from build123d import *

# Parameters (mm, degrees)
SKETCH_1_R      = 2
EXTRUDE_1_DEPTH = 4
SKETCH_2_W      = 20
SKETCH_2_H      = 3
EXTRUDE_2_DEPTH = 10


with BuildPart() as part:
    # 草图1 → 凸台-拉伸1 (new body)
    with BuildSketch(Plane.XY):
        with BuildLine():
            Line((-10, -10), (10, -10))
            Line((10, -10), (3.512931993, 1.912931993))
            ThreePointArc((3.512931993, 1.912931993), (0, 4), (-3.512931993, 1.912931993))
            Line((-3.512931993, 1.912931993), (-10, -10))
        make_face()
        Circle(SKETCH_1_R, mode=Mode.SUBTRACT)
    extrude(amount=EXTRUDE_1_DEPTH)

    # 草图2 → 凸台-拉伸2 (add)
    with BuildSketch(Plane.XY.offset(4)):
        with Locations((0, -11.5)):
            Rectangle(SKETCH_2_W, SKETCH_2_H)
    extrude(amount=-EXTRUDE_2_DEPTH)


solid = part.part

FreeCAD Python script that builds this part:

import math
import FreeCAD as App
import Part
import Sketcher
from FreeCAD import Vector
Q = App.Units.Quantity


def add_polygon(sketch, points):
    """Adds a closed chain of lines whose ends are joined by coincident constraints."""
    first, n = sketch.GeometryCount, len(points)
    for a, b in zip(points, points[1:] + points[:1]):
        sketch.addGeometry(Part.LineSegment(App.Vector(*a, 0), App.Vector(*b, 0)), False)
    for i in range(n):
        sketch.addConstraint(Sketcher.Constraint("Coincident", first + i, 2, first + (i + 1) % n, 1))

doc = App.newDocument("Part")
body = doc.addObject("PartDesign::Body", "Body")

sketch1 = body.newObject("Sketcher::SketchObject", "Sketch")
sketch1.AttachmentSupport = (doc.getObject("XY_Plane"), [""])
sketch1.MapMode = "FlatFace"
sketch1.addGeometry(Part.LineSegment(Vector(-10, -10, 0), Vector(10, -10, 0)), False)
sketch1.addGeometry(Part.LineSegment(Vector(10, -10, 0), Vector(3.5, 1.9, 0)), False)
sketch1.addGeometry(Part.ArcOfCircle(Part.Circle(Vector(0, 0, 0), Vector(0, 0, 1), 4), math.radians(29), math.radians(151)), False)
sketch1.addGeometry(Part.LineSegment(Vector(-3.5, 1.9, 0), Vector(-10, -10, 0)), False)
sketch1.addGeometry(Part.Circle(Vector(0, 0, 0), Vector(0, 0, 1), 2), False)
sketch1.addConstraint(Sketcher.Constraint("Coincident", 0, 2, 1, 1))
sketch1.addConstraint(Sketcher.Constraint("Tangent", 1, 2, 2, 1))
sketch1.addConstraint(Sketcher.Constraint("Tangent", 2, 2, 3, 1))
sketch1.addConstraint(Sketcher.Constraint("Coincident", 3, 2, 0, 1))
sketch1.addConstraint(Sketcher.Constraint("Horizontal", 0))
sketch1.addConstraint(Sketcher.Constraint("Coincident", 2, 3, -1, 1))
sketch1.addConstraint(Sketcher.Constraint("Coincident", 4, 3, -1, 1))
sketch1.addConstraint(Sketcher.Constraint("Horizontal", 1, 2, 2, 2))
sketch1.addConstraint(Sketcher.Constraint("Diameter", 4, Q("4 mm")))
sketch1.addConstraint(Sketcher.Constraint("Radius", 2, Q("4 mm")))
sketch1.addConstraint(Sketcher.Constraint("DistanceX", 0, 1, 0, 2, Q("20 mm")))
sketch1.addConstraint(Sketcher.Constraint("DistanceY", 0, 2, -1, 1, Q("10 mm")))
pad1 = body.newObject("PartDesign::Pad", "Pad")
pad1.Profile = sketch1
pad1.Length = 4

sketch2 = body.newObject("Sketcher::SketchObject", "Sketch001")
sketch2.AttachmentSupport = (doc.getObject("XY_Plane"), [""])
sketch2.MapMode = "FlatFace"
sketch2.AttachmentOffset = App.Placement(Vector(0, 0, 4), App.Rotation())
add_polygon(sketch2, [(-10, -10), (-10, -13), (10, -13), (10, -10)])
sketch2.addConstraint(Sketcher.Constraint("Vertical", 0))
sketch2.addConstraint(Sketcher.Constraint("Horizontal", 1))
sketch2.addConstraint(Sketcher.Constraint("Vertical", 2))
sketch2.addConstraint(Sketcher.Constraint("Horizontal", 3))
sketch2.addConstraint(Sketcher.Constraint("DistanceX", 1, 1, 1, 2, Q("20 mm")))
sketch2.addConstraint(Sketcher.Constraint("DistanceY", 0, 2, 0, 1, Q("3 mm")))
sketch2.addConstraint(Sketcher.Constraint("DistanceX", 0, 2, -1, 1, Q("10 mm")))
sketch2.addConstraint(Sketcher.Constraint("DistanceY", 0, 2, -1, 1, Q("13 mm")))
pad2 = body.newObject("PartDesign::Pad", "Pad001")
pad2.Profile = sketch2
pad2.Length = 10
pad2.Reversed = True

doc.recompute()
